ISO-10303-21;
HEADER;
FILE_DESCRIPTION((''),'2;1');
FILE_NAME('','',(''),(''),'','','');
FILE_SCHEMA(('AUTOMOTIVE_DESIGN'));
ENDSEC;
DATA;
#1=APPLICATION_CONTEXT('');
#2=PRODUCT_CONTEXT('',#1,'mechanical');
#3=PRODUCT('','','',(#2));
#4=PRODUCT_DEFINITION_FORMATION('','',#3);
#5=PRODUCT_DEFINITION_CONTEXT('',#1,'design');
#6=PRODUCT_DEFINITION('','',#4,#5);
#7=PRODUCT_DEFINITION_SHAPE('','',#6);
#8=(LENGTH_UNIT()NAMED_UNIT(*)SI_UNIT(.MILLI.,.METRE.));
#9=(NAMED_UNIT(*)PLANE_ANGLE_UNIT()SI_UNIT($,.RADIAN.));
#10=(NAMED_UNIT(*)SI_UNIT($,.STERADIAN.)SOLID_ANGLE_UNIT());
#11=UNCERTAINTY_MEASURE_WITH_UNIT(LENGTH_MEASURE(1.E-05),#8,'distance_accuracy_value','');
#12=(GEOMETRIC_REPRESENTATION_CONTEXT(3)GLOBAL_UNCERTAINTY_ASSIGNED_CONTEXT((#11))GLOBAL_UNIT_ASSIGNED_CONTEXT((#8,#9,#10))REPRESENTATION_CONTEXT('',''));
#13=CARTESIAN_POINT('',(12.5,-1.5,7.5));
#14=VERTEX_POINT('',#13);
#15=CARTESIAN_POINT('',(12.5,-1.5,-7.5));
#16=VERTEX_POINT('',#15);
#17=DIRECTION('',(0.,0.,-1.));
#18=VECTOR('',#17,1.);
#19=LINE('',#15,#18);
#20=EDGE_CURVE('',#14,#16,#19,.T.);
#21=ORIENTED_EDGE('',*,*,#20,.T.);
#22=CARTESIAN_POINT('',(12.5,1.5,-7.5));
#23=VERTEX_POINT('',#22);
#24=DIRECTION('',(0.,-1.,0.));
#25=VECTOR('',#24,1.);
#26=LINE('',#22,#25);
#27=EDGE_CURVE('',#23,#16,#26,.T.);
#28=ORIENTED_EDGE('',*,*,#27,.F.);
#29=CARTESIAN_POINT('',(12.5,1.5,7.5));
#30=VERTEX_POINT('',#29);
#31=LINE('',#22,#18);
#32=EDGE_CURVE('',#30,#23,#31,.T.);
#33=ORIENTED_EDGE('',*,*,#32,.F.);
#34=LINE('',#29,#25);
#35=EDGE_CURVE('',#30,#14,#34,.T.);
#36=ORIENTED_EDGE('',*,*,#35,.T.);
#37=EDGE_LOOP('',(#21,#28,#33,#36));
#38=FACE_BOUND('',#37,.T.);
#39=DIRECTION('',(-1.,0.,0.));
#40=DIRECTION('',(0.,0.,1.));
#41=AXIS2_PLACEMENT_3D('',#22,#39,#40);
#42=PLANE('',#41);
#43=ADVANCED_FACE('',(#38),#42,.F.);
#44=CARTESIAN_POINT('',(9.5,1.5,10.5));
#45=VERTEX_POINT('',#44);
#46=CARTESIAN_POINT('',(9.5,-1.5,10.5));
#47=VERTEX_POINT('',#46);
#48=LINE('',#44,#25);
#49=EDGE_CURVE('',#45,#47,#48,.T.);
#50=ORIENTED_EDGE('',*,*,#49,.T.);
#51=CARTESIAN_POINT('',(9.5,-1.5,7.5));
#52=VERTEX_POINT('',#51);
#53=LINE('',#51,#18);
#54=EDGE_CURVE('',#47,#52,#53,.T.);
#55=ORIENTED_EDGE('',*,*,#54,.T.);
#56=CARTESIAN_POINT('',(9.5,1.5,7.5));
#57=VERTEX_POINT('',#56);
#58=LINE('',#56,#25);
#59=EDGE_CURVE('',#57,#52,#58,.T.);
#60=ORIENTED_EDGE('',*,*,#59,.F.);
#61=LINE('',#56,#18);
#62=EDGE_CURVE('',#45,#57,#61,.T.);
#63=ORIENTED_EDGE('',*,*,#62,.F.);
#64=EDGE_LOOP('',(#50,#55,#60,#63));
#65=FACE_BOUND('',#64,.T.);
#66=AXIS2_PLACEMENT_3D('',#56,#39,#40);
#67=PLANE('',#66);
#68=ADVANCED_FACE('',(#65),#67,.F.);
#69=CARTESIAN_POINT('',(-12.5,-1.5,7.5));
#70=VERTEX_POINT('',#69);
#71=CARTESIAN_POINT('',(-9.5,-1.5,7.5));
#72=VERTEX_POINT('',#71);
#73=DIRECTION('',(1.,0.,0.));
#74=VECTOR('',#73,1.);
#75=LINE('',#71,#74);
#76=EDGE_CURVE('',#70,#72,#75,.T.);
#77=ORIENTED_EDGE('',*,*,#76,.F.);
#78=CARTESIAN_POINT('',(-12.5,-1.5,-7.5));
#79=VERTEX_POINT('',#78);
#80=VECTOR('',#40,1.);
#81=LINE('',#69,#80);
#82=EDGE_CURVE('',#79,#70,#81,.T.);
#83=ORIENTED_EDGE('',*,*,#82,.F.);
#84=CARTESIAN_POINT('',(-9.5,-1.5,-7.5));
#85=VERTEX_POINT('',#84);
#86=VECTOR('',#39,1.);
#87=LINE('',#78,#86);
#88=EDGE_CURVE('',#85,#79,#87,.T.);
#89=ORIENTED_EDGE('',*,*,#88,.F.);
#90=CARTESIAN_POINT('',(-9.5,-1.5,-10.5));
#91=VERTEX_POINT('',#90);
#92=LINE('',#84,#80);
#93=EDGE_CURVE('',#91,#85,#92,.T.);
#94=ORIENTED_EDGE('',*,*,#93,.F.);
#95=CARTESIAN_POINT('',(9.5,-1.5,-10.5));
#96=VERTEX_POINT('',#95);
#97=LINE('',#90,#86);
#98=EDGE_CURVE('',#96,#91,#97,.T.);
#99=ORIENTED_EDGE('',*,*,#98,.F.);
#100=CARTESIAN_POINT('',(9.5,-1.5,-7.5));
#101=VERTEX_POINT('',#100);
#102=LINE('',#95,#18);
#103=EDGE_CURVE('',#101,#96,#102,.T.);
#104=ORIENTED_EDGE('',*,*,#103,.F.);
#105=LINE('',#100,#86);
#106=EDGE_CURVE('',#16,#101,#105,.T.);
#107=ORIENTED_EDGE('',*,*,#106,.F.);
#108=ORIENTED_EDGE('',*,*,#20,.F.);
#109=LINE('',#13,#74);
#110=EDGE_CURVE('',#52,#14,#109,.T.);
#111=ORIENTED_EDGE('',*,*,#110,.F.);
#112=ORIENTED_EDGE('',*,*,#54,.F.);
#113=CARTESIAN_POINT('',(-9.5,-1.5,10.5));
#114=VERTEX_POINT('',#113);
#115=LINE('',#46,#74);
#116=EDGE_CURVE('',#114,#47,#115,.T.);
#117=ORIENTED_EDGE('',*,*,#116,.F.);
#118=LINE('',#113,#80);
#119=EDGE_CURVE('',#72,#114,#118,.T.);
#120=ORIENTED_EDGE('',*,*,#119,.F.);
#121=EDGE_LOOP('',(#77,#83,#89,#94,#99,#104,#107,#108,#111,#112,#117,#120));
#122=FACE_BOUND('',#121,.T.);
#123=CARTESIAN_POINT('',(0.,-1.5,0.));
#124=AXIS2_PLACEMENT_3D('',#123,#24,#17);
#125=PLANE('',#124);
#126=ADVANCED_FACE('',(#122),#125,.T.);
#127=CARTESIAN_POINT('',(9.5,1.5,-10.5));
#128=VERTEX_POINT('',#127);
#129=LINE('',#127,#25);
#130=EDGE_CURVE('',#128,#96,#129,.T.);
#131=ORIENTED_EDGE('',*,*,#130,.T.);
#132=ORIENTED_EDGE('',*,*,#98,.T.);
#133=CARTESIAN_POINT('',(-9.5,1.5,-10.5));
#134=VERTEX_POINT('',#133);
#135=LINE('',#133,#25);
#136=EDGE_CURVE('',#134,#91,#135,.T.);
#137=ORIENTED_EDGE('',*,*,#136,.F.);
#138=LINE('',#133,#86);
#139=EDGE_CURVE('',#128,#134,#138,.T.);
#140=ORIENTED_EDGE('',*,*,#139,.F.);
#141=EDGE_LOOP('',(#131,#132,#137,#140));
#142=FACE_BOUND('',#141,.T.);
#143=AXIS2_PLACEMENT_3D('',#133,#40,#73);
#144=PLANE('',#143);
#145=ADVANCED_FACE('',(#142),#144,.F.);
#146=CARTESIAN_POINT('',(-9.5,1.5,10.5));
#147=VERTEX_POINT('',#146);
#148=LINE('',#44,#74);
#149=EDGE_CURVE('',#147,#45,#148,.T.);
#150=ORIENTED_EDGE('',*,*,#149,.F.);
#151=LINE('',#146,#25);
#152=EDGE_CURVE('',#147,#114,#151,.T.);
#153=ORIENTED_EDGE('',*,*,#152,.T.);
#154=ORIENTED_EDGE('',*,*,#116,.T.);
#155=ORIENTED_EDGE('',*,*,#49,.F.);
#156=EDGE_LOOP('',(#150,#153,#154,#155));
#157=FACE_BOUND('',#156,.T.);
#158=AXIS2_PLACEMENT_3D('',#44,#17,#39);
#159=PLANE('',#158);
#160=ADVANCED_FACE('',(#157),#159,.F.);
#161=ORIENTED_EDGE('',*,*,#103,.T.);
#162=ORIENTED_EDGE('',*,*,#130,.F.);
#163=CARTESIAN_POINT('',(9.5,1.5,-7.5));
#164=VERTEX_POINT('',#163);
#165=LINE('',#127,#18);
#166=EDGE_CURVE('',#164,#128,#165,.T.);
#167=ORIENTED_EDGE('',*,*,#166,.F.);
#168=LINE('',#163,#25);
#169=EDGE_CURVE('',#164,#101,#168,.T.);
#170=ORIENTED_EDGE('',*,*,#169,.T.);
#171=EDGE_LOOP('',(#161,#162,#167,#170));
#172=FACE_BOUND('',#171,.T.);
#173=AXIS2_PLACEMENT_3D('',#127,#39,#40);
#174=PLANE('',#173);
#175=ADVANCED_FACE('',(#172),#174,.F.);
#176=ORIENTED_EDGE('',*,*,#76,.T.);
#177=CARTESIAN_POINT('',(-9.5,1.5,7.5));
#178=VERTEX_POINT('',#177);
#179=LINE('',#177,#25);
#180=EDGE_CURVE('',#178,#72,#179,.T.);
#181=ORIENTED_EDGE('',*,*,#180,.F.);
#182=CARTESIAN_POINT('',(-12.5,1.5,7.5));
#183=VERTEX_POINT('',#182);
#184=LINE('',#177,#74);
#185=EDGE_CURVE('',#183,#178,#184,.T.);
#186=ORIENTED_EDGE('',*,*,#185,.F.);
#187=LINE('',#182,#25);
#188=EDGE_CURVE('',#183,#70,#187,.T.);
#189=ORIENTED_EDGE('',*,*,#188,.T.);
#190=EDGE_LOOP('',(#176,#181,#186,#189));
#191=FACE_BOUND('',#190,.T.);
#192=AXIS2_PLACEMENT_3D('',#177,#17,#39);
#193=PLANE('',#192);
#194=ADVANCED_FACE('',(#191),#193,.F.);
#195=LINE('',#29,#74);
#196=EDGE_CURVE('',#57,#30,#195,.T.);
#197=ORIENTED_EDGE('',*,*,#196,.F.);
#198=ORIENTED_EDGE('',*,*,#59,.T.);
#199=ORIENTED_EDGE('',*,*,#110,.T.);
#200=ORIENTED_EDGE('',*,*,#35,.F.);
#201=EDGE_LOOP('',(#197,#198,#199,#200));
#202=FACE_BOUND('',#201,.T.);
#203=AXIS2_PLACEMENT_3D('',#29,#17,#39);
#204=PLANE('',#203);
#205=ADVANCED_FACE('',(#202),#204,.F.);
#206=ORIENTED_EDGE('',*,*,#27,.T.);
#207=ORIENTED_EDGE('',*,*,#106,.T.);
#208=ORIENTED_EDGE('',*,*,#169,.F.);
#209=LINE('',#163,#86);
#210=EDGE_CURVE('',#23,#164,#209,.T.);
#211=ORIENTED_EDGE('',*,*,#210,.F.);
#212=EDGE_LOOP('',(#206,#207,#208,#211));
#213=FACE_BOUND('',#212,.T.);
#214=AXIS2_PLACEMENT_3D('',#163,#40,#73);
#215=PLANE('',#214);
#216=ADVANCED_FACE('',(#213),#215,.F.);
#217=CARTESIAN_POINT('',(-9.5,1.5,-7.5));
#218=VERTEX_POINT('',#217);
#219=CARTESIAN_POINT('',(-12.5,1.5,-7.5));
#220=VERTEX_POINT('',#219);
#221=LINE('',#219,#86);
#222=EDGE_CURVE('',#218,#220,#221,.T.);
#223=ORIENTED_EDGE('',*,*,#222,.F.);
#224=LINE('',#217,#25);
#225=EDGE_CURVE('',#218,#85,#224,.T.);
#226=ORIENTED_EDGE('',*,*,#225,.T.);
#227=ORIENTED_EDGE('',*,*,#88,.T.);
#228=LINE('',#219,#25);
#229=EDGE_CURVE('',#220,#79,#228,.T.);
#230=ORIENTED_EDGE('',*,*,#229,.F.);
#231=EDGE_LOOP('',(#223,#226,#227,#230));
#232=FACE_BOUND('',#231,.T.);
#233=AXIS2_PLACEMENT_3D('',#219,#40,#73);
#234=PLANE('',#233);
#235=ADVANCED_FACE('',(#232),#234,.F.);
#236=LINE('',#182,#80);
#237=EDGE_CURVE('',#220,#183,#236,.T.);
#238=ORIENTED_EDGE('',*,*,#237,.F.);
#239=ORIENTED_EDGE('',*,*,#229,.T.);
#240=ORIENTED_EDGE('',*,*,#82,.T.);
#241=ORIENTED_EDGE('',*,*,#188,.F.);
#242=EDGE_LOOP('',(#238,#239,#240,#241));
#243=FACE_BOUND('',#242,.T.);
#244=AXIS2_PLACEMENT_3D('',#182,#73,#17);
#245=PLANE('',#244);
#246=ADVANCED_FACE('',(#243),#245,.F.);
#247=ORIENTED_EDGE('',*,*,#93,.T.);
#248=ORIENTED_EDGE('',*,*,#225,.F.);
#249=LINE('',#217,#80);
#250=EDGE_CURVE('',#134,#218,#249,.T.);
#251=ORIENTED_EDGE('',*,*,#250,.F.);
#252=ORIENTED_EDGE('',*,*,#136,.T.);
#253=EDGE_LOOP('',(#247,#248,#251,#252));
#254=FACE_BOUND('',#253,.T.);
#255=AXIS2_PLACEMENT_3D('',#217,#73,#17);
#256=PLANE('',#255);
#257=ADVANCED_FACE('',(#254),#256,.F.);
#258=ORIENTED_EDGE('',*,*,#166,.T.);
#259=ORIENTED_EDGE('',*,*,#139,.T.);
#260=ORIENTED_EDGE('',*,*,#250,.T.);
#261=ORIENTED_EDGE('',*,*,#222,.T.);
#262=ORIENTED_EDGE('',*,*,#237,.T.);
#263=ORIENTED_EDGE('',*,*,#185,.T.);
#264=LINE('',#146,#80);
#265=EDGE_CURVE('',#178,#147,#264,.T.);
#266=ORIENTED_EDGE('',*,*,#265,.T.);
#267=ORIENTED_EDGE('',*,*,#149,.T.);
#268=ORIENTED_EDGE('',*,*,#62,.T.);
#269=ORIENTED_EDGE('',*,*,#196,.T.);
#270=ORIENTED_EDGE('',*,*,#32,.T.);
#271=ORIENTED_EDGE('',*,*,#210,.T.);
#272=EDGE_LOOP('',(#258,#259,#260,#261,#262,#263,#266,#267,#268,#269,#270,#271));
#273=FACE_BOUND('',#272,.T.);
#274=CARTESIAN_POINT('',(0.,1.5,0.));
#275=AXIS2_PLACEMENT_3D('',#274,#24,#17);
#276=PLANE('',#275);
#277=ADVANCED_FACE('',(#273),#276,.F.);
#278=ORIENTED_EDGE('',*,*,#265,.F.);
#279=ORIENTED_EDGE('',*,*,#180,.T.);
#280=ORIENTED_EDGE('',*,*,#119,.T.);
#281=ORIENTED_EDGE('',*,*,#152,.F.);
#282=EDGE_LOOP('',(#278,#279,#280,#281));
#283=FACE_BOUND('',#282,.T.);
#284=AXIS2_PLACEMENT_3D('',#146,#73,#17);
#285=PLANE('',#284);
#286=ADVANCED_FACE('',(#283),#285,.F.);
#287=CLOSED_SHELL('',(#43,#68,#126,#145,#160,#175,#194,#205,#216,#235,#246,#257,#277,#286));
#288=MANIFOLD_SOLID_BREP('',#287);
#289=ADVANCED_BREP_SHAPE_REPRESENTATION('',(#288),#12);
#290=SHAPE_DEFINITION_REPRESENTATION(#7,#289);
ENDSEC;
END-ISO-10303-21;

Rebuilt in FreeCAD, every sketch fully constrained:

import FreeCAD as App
import Part
import Sketcher

V = App.Vector


def add_polygon(sketch, points):
    """Adds a closed chain of lines whose ends are joined by coincident constraints."""
    first, n = sketch.GeometryCount, len(points)
    for a, b in zip(points, points[1:] + points[:1]):
        sketch.addGeometry(Part.LineSegment(App.Vector(*a, 0), App.Vector(*b, 0)), False)
    for i in range(n):
        sketch.addConstraint(Sketcher.Constraint("Coincident", first + i, 2, first + (i + 1) % n, 1))

doc = App.newDocument("Part")
body = doc.addObject("PartDesign::Body", "Body")

sketch1 = body.newObject("Sketcher::SketchObject", "Sketch")
sketch1.AttachmentSupport = (doc.getObject("XZ_Plane"), [""])
sketch1.MapMode = "FlatFace"
add_polygon(sketch1, [(9.5, -10.5), (-9.5, -10.5), (-9.5, -7.5), (-12.5, -7.5), (-12.5, 7.5), (-9.5, 7.5), (-9.5, 10.5), (9.5, 10.5), (9.5, 7.5), (12.5, 7.5), (12.5, -7.5), (9.5, -7.5)])
sketch1.addConstraint(Sketcher.Constraint("Horizontal", 0))
sketch1.addConstraint(Sketcher.Constraint("Vertical", 1))
sketch1.addConstraint(Sketcher.Constraint("Horizontal", 2))
sketch1.addConstraint(Sketcher.Constraint("Vertical", 3))
sketch1.addConstraint(Sketcher.Constraint("Horizontal", 4))
sketch1.addConstraint(Sketcher.Constraint("Vertical", 5))
sketch1.addConstraint(Sketcher.Constraint("Horizontal", 6))
sketch1.addConstraint(Sketcher.Constraint("Vertical", 7))
sketch1.addConstraint(Sketcher.Constraint("Horizontal", 8))
sketch1.addConstraint(Sketcher.Constraint("Vertical", 9))
sketch1.addConstraint(Sketcher.Constraint("Horizontal", 10))
sketch1.addConstraint(Sketcher.Constraint("Vertical", 11))
sketch1.addConstraint(Sketcher.Constraint("Symmetric", 0, 2, 6, 2, -1, 1))
sketch1.addConstraint(Sketcher.Constraint("Symmetric", 2, 2, 8, 2, -1, 1))
sketch1.addConstraint(Sketcher.Constraint("Symmetric", 4, 2, 10, 2, -1, 1))
sketch1.addConstraint(Sketcher.Constraint("Symmetric", 4, 2, 7, 2, -2))
sketch1.addConstraint(Sketcher.Constraint("Equal", 10, 1))
sketch1.addConstraint(Sketcher.Constraint("DistanceX", 0, 2, 0, 1, 19.0))
sketch1.addConstraint(Sketcher.Constraint("DistanceX", 2, 2, 2, 1, 3.0))
sketch1.addConstraint(Sketcher.Constraint("DistanceY", 3, 1, 3, 2, 15.0))
pad1 = body.newObject("PartDesign::Pad", "Pad")
pad1.Profile = sketch1
pad1.Length = 3
pad1.Midplane = True

doc.recompute()
